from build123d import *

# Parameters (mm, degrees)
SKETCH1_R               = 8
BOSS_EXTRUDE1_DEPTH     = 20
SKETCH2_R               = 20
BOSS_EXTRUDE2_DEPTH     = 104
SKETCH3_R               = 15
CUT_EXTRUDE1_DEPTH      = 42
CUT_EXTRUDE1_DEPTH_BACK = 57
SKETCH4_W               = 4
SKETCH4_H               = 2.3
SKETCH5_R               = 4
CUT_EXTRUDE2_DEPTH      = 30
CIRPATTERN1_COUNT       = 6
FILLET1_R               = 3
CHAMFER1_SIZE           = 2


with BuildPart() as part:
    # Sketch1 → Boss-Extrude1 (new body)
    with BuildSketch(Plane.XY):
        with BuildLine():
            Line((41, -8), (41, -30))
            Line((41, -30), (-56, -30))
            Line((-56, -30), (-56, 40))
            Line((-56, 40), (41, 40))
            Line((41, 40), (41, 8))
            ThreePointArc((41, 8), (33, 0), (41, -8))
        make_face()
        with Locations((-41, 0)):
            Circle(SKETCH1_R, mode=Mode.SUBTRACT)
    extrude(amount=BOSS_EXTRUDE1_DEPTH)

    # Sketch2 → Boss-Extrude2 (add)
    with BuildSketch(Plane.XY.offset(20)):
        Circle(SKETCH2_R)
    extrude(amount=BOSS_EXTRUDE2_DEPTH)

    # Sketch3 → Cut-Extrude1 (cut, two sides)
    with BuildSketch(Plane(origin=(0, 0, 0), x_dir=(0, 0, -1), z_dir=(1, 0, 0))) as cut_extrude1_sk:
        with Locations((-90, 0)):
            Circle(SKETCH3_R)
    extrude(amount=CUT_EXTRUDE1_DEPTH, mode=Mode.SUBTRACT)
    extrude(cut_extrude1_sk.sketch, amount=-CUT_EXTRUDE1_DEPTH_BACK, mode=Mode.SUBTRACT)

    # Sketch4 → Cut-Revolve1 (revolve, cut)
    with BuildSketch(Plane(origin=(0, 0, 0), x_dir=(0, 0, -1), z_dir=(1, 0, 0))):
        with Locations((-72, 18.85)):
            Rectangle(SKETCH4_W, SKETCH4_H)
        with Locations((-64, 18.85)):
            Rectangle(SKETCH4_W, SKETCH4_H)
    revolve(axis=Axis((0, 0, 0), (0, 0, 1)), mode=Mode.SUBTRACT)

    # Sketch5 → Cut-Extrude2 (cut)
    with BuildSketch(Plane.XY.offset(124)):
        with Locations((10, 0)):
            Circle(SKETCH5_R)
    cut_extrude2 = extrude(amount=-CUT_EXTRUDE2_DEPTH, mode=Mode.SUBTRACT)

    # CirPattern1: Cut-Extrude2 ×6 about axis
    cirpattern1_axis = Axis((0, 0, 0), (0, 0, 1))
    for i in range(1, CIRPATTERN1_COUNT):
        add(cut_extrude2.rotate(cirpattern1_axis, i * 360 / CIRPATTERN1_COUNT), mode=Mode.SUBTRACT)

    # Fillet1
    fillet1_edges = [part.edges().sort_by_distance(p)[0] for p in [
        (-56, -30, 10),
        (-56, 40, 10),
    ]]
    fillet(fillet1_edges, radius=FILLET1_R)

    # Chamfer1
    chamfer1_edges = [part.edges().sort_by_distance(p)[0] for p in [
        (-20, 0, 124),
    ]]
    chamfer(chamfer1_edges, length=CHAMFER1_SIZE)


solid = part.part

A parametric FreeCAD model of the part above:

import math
import FreeCAD as App
import Part
import Sketcher

V = App.Vector
Q = App.Units.Quantity


def edges_at(feature, points):
    """Names of the edges that pass closest to the given points."""
    edges = feature.Shape.Edges
    near = lambda p: min(range(len(edges)), key=lambda i: edges[i].distToShape(Part.Vertex(*p))[0])
    return sorted({f"Edge{near(p) + 1}" for p in points})


def add_polygon(sketch, points):
    """Adds a closed chain of lines whose ends are joined by coincident constraints."""
    first, n = sketch.GeometryCount, len(points)
    for a, b in zip(points, points[1:] + points[:1]):
        sketch.addGeometry(Part.LineSegment(App.Vector(*a, 0), App.Vector(*b, 0)), False)
    for i in range(n):
        sketch.addConstraint(Sketcher.Constraint("Coincident", first + i, 2, first + (i + 1) % n, 1))

doc = App.newDocument("Part")
body = doc.addObject("PartDesign::Body", "Body")

# Sketch on XY plane
sketch1 = doc.addObject("Sketcher::SketchObject", "Sketch")
body.addObject(sketch1)
sketch1.AttachmentSupport = (doc.XY_Plane, [""])
sketch1.MapMode = "FlatFace"
sketch1.addGeometry(Part.LineSegment(V(41, -30, 0), V(41, -8, 0)), False)
sketch1.addGeometry(Part.ArcOfCircle(Part.Circle(V(41, 0, 0), V(0, 0, 1), 8), math.radians(90), math.radians(270)), False)
sketch1.addGeometry(Part.LineSegment(V(41, 8, 0), V(41, 40, 0)), False)
sketch1.addGeometry(Part.LineSegment(V(41, 40, 0), V(-56, 40, 0)), False)
sketch1.addGeometry(Part.LineSegment(V(-56, 40, 0), V(-56, -30, 0)), False)
sketch1.addGeometry(Part.LineSegment(V(-56, -30, 0), V(41, -30, 0)), False)
sketch1.addGeometry(Part.Circle(V(-41, 0, 0), V(0, 0, 1), 8), False)
sketch1.addConstraint(Sketcher.Constraint("Coincident", 0, 2, 1, 2))
sketch1.addConstraint(Sketcher.Constraint("Coincident", 1, 1, 2, 1))
sketch1.addConstraint(Sketcher.Constraint("Coincident", 2, 2, 3, 1))
sketch1.addConstraint(Sketcher.Constraint("Coincident", 3, 2, 4, 1))
sketch1.addConstraint(Sketcher.Constraint("Coincident", 4, 2, 5, 1))
sketch1.addConstraint(Sketcher.Constraint("Coincident", 5, 2, 0, 1))
sketch1.addConstraint(Sketcher.Constraint("Vertical", 0))
sketch1.addConstraint(Sketcher.Constraint("Vertical", 2))
sketch1.addConstraint(Sketcher.Constraint("Horizontal", 3))
sketch1.addConstraint(Sketcher.Constraint("Vertical", 4))
sketch1.addConstraint(Sketcher.Constraint("Horizontal", 5))
sketch1.addConstraint(Sketcher.Constraint("Equal", 1, 6))
sketch1.addConstraint(Sketcher.Constraint("Symmetric", 1, 3, 6, 3, -1, 1))
sketch1.addConstraint(Sketcher.Constraint("Symmetric", 0, 2, 1, 1, -1))
sketch1.addConstraint(Sketcher.Constraint("Vertical", 1, 3, 0, 2))
sketch1.addConstraint(Sketcher.Constraint("Diameter", 6, Q("16 mm")))
sketch1.addConstraint(Sketcher.Constraint("DistanceX", 3, 2, 3, 1, Q("97 mm")))
sketch1.addConstraint(Sketcher.Constraint("DistanceY", 0, 1, 0, 2, Q("22 mm")))
sketch1.addConstraint(Sketcher.Constraint("DistanceY", 2, 1, 2, 2, Q("32 mm")))
sketch1.addConstraint(Sketcher.Constraint("DistanceX", -1, 1, 1, 3, Q("41 mm")))
pad1 = doc.addObject("PartDesign::Pad", "Pad")
body.addObject(pad1)
pad1.Profile = sketch1
pad1.Length = 20

# Sketch on XY plane
sketch2 = doc.addObject("Sketcher::SketchObject", "Sketch001")
body.addObject(sketch2)
sketch2.AttachmentSupport = (doc.XY_Plane, [""])
sketch2.MapMode = "FlatFace"
sketch2.AttachmentOffset = App.Placement(V(0, 0, 20), App.Rotation())
sketch2.addGeometry(Part.Circle(V(0, 0, 0), V(0, 0, 1), 20), False)
sketch2.addConstraint(Sketcher.Constraint("Coincident", 0, 3, -1, 1))
sketch2.addConstraint(Sketcher.Constraint("Diameter", 0, Q("40 mm")))
pad2 = doc.addObject("PartDesign::Pad", "Pad001")
body.addObject(pad2)
pad2.Profile = sketch2
pad2.Length = 104

# Sketch on YZ plane
sketch3 = doc.addObject("Sketcher::SketchObject", "Sketch002")
body.addObject(sketch3)
sketch3.AttachmentSupport = (doc.YZ_Plane, [""])
sketch3.MapMode = "FlatFace"
sketch3.addGeometry(Part.Circle(V(0, 90, 0), V(0, 0, 1), 15), False)
sketch3.addConstraint(Sketcher.Constraint("PointOnObject", 0, 3, -2))
sketch3.addConstraint(Sketcher.Constraint("Diameter", 0, Q("30 mm")))
sketch3.addConstraint(Sketcher.Constraint("DistanceY", -1, 1, 0, 3, Q("90 mm")))
pocket1 = doc.addObject("PartDesign::Pocket", "Pocket")
body.addObject(pocket1)
pocket1.Profile = sketch3
pocket1.Type = "ThroughAll"
pocket1.Midplane = True

# Sketch on YZ plane
sketch4 = doc.addObject("Sketcher::SketchObject", "Sketch003")
body.addObject(sketch4)
sketch4.AttachmentSupport = (doc.YZ_Plane, [""])
sketch4.MapMode = "FlatFace"
add_polygon(sketch4, [(20, 74), (17.7, 74), (17.7, 70), (20, 70)])  # lines 0-3
add_polygon(sketch4, [(20, 66), (17.7, 66), (17.7, 62), (20, 62)])  # lines 4-7
sketch4.addConstraint(Sketcher.Constraint("Horizontal", 0))
sketch4.addConstraint(Sketcher.Constraint("Vertical", 1))
sketch4.addConstraint(Sketcher.Constraint("Horizontal", 2))
sketch4.addConstraint(Sketcher.Constraint("Vertical", 3))
sketch4.addConstraint(Sketcher.Constraint("Horizontal", 4))
sketch4.addConstraint(Sketcher.Constraint("Vertical", 5))
sketch4.addConstraint(Sketcher.Constraint("Horizontal", 6))
sketch4.addConstraint(Sketcher.Constraint("Vertical", 7))
sketch4.addConstraint(Sketcher.Constraint("Vertical", 1, 2, 4, 2))
sketch4.addConstraint(Sketcher.Constraint("Vertical", 3, 2, 6, 2))
sketch4.addConstraint(Sketcher.Constraint("Equal", 3, 5))
sketch4.addConstraint(Sketcher.Constraint("DistanceY", 1, 2, 1, 1, Q("4 mm")))
sketch4.addConstraint(Sketcher.Constraint("DistanceX", 0, 2, 0, 1, Q("2.3 mm")))
sketch4.addConstraint(Sketcher.Constraint("DistanceY", -1, 1, 0, 2, Q("74 mm")))
sketch4.addConstraint(Sketcher.Constraint("DistanceX", -1, 1, 2, 2, Q("20 mm")))
sketch4.addConstraint(Sketcher.Constraint("DistanceY", -1, 1, 4, 2, Q("66 mm")))
groove = doc.addObject("PartDesign::Groove", "Groove")
body.addObject(groove)
groove.Profile = sketch4
groove.ReferenceAxis = (sketch4, ["V_Axis"])
groove.Angle = 360

# Sketch on XY plane
sketch5 = doc.addObject("Sketcher::SketchObject", "Sketch004")
body.addObject(sketch5)
sketch5.AttachmentSupport = (doc.XY_Plane, [""])
sketch5.MapMode = "FlatFace"
sketch5.AttachmentOffset = App.Placement(V(0, 0, 124), App.Rotation())
sketch5.addGeometry(Part.Circle(V(10, 0, 0), V(0, 0, 1), 4), False)
sketch5.addConstraint(Sketcher.Constraint("PointOnObject", 0, 3, -1))
sketch5.addConstraint(Sketcher.Constraint("Diameter", 0, Q("8 mm")))
sketch5.addConstraint(Sketcher.Constraint("DistanceX", -1, 1, 0, 3, Q("10 mm")))
pocket2 = doc.addObject("PartDesign::Pocket", "Pocket001")
body.addObject(pocket2)
pocket2.Profile = sketch5
pocket2.Length = 30
doc.recompute()

polarpattern = doc.addObject("PartDesign::PolarPattern", "PolarPattern")
body.addObject(polarpattern)
polarpattern.Originals = [pocket2]
polarpattern.Axis = (doc.Z_Axis, [""])
polarpattern.Angle = 360
polarpattern.Occurrences = 6
body.Tip = polarpattern
doc.recompute()

fillet = doc.addObject("PartDesign::Fillet", "Fillet")
body.addObject(fillet)
fillet.Base = (polarpattern, edges_at(polarpattern, [(-56, -30, 10), (-56, 40, 10)]))
fillet.Radius = 3
doc.recompute()

chamfer = doc.addObject("PartDesign::Chamfer", "Chamfer")
body.addObject(chamfer)
chamfer.Base = (fillet, edges_at(fillet, [(-20, 0, 124)]))
chamfer.Size = 2

doc.recompute()
